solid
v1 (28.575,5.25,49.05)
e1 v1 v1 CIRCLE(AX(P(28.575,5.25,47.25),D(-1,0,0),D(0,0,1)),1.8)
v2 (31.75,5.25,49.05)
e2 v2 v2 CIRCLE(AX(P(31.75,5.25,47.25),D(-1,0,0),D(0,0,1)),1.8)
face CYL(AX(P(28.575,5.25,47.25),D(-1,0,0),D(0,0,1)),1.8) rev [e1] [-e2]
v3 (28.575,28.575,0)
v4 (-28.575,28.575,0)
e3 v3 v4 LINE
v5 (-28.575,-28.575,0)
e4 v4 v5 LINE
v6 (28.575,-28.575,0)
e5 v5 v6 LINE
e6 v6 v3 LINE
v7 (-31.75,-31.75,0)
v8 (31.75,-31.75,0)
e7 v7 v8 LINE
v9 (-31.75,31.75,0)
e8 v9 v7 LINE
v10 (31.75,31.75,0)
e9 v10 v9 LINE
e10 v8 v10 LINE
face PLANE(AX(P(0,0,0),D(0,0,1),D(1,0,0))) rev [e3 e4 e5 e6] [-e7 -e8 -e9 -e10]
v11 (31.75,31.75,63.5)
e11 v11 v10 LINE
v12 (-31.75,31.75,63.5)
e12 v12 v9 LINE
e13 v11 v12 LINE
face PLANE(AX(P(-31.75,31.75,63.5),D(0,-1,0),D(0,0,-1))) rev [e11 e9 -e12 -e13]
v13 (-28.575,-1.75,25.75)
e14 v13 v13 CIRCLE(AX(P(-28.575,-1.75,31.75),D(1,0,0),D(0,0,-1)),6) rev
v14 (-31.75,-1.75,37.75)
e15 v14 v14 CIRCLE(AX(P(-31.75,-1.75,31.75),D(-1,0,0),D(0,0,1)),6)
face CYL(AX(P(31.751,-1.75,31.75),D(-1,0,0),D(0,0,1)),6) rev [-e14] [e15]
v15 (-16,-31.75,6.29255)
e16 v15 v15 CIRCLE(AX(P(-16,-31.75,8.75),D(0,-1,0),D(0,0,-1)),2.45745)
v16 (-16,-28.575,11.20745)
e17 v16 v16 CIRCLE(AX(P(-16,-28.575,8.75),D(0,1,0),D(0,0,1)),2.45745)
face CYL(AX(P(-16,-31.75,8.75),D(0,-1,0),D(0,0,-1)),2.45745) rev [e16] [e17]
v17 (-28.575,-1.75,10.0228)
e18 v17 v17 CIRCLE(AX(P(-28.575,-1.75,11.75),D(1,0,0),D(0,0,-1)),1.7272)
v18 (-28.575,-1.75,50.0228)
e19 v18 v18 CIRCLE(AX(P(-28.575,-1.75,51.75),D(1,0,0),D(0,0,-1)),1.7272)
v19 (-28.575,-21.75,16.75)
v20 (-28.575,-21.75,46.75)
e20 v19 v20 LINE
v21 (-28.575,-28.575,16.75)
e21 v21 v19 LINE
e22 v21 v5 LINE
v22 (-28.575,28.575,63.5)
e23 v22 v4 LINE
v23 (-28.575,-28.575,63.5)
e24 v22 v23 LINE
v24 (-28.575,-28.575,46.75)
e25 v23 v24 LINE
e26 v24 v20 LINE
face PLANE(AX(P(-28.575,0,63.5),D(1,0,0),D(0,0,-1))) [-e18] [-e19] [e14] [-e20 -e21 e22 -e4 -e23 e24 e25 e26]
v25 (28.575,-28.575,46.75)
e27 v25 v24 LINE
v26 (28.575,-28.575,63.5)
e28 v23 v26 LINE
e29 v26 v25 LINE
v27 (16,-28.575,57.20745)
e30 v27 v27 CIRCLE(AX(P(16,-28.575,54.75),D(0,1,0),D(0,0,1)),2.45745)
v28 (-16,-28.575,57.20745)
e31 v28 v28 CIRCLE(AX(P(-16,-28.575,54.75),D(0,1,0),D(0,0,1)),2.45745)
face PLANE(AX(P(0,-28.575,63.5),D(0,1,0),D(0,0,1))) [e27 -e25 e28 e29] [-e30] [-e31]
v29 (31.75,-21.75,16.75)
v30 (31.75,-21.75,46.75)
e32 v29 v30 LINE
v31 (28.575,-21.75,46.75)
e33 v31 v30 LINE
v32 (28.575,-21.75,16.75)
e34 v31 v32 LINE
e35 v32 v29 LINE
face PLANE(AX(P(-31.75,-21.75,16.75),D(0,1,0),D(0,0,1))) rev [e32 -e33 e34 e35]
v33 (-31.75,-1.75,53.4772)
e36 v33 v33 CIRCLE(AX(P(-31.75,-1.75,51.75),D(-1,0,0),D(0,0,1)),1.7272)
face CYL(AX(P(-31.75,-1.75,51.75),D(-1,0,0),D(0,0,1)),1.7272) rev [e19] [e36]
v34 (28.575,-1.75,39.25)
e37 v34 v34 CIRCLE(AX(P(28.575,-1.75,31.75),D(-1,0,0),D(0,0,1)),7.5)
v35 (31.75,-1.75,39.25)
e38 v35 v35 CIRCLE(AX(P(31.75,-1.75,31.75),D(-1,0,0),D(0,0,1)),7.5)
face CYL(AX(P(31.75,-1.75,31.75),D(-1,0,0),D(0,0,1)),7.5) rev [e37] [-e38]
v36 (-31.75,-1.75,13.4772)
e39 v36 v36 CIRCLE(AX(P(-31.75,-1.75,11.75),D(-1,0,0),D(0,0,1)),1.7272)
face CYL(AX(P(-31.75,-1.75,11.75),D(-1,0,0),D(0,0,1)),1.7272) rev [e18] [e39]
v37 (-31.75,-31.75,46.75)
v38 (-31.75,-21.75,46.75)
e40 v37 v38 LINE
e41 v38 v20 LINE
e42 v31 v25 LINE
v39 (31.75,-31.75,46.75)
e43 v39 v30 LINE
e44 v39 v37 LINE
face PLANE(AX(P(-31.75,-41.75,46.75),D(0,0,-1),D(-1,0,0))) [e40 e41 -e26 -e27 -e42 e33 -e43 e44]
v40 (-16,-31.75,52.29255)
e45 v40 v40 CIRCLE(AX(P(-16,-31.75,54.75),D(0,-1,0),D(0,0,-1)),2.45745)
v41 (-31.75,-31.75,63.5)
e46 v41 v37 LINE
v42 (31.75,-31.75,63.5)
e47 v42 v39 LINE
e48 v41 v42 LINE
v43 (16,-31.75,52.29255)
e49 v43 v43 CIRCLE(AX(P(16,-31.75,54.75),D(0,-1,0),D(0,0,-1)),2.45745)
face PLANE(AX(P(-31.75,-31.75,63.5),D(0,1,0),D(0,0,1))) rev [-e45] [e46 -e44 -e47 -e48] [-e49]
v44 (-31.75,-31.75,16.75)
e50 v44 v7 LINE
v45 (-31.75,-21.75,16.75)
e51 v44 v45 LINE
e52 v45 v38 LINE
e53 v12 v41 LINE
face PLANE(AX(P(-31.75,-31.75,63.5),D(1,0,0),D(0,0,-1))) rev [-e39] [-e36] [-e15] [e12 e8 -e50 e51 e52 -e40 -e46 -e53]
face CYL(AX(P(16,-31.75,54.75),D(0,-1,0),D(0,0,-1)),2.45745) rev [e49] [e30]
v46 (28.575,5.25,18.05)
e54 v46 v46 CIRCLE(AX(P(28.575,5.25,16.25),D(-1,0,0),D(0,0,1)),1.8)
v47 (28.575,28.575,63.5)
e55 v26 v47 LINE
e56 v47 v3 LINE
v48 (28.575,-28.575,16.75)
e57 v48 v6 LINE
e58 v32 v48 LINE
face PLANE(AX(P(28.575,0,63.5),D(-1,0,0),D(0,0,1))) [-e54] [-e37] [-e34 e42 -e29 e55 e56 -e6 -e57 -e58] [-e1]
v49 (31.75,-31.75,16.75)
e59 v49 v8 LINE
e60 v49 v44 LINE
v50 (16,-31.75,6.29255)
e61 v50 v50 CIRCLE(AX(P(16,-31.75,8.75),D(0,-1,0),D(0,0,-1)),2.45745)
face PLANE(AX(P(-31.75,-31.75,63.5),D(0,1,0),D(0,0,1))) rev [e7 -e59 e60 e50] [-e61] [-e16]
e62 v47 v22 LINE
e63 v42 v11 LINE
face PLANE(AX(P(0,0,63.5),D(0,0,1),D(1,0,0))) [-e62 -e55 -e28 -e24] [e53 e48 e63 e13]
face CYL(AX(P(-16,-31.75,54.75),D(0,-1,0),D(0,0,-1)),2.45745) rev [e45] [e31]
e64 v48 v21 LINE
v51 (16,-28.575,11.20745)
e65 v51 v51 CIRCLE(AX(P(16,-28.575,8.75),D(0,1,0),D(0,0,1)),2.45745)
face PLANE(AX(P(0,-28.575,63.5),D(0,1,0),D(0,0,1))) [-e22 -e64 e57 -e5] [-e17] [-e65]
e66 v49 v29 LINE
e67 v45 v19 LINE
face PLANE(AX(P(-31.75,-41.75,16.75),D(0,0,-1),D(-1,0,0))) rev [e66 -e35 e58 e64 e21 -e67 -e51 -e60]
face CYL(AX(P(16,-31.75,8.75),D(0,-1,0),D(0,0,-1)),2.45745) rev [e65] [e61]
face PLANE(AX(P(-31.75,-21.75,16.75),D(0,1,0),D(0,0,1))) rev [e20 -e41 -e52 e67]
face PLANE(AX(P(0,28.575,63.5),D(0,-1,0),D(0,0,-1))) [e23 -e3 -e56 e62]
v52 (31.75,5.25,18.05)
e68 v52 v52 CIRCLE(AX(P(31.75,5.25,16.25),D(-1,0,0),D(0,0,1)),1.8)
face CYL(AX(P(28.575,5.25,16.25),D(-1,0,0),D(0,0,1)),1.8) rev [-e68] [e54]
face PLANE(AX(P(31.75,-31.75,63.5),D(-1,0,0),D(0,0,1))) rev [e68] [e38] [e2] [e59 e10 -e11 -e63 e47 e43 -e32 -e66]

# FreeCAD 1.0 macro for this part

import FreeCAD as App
import Part
import Sketcher

V = App.Vector
Q = App.Units.Quantity

doc = App.newDocument("Part")
body = doc.addObject("PartDesign::Body", "Body")

sketch1 = body.newObject("Sketcher::SketchObject", "Sketch")
sketch1.AttachmentSupport = (doc.getObject("XY_Plane"), [""])
sketch1.MapMode = "FlatFace"
sketch1.addGeometry([
    Part.LineSegment(V(-32, 32, 0), V(-32, -32, 0)),
    Part.LineSegment(V(-32, -32, 0), V(32, -32, 0)),
    Part.LineSegment(V(32, -32, 0), V(32, 32, 0)),
    Part.LineSegment(V(32, 32, 0), V(-32, 32, 0)),
    Part.LineSegment(V(29, -29, 0), V(-29, -29, 0)),
    Part.LineSegment(V(-29, -29, 0), V(-29, 29, 0)),
    Part.LineSegment(V(-29, 29, 0), V(29, 29, 0)),
    Part.LineSegment(V(29, 29, 0), V(29, -29, 0)),
], False)
sketch1.addConstraint([
    Sketcher.Constraint("Coincident", 0, 2, 1, 1),
    Sketcher.Constraint("Coincident", 1, 2, 2, 1),
    Sketcher.Constraint("Coincident", 2, 2, 3, 1),
    Sketcher.Constraint("Coincident", 3, 2, 0, 1),
    Sketcher.Constraint("Coincident", 4, 2, 5, 1),
    Sketcher.Constraint("Coincident", 5, 2, 6, 1),
    Sketcher.Constraint("Coincident", 6, 2, 7, 1),
    Sketcher.Constraint("Coincident", 7, 2, 4, 1),
    Sketcher.Constraint("Vertical", 0),
    Sketcher.Constraint("Horizontal", 1),
    Sketcher.Constraint("Vertical", 2),
    Sketcher.Constraint("Horizontal", 3),
    Sketcher.Constraint("Horizontal", 4),
    Sketcher.Constraint("Vertical", 5),
    Sketcher.Constraint("Horizontal", 6),
    Sketcher.Constraint("Vertical", 7),
    Sketcher.Constraint("Symmetric", 0, 2, 2, 2, -1, 1),
    Sketcher.Constraint("Symmetric", 4, 2, 6, 2, -1, 1),
    Sketcher.Constraint("Equal", 3, 0),
    Sketcher.Constraint("Equal", 6, 5),
    Sketcher.Constraint("DistanceX", 1, 1, 1, 2, Q("63.5 mm")),
    Sketcher.Constraint("DistanceX", 4, 2, 4, 1, Q("57.15 mm")),
])
pad1 = body.newObject("PartDesign::Pad", "Pad")
pad1.Profile = sketch1
pad1.Length = 63.5

sketch2 = body.newObject("Sketcher::SketchObject", "Sketch001")
sketch2.AttachmentSupport = (doc.getObject("YZ_Plane"), [""])
sketch2.MapMode = "FlatFace"
sketch2.AttachmentOffset = App.Placement(V(0, 0, 31.75), App.Rotation())
sketch2.addGeometry([
    Part.LineSegment(V(-22, 47, 0), V(-42, 47, 0)),
    Part.LineSegment(V(-42, 47, 0), V(-42, 17, 0)),
    Part.LineSegment(V(-42, 17, 0), V(-22, 17, 0)),
    Part.LineSegment(V(-22, 17, 0), V(-22, 47, 0)),
], False)
sketch2.addConstraint([
    Sketcher.Constraint("Coincident", 0, 2, 1, 1),
    Sketcher.Constraint("Coincident", 1, 2, 2, 1),
    Sketcher.Constraint("Coincident", 2, 2, 3, 1),
    Sketcher.Constraint("Coincident", 3, 2, 0, 1),
    Sketcher.Constraint("Horizontal", 0),
    Sketcher.Constraint("Vertical", 1),
    Sketcher.Constraint("Horizontal", 2),
    Sketcher.Constraint("Vertical", 3),
    Sketcher.Constraint("DistanceX", 0, 2, 0, 1, Q("20 mm")),
    Sketcher.Constraint("DistanceY", 1, 2, 1, 1, Q("30 mm")),
    Sketcher.Constraint("DistanceX", 0, 2, -1, 1, Q("41.75 mm")),
    Sketcher.Constraint("DistanceY", -1, 1, 0, 2, Q("46.75 mm")),
])
pocket1 = body.newObject("PartDesign::Pocket", "Pocket")
pocket1.Profile = sketch2
pocket1.Type = "ThroughAll"

sketch3 = body.newObject("Sketcher::SketchObject", "Sketch002")
sketch3.AttachmentSupport = (doc.getObject("YZ_Plane"), [""])
sketch3.MapMode = "FlatFace"
sketch3.AttachmentOffset = App.Placement(V(0, 0, 28.575), App.Rotation())
sketch3.addGeometry(Part.Circle(V(-2, 32, 0), V(0, 0, 1), 8), False)
sketch3.addConstraint([
    Sketcher.Constraint("Diameter", 0, Q("15 mm")),
    Sketcher.Constraint("DistanceX", 0, 3, -1, 1, Q("1.75 mm")),
    Sketcher.Constraint("DistanceY", -1, 1, 0, 3, Q("31.75 mm")),
])
pocket2 = body.newObject("PartDesign::Pocket", "Pocket001")
pocket2.Profile = sketch3
pocket2.Type = "ThroughAll"
pocket2.Reversed = True

sketch4 = body.newObject("Sketcher::SketchObject", "Sketch003")
sketch4.AttachmentSupport = (doc.getObject("YZ_Plane"), [""])
sketch4.MapMode = "FlatFace"
sketch4.AttachmentOffset = App.Placement(V(0, 0, 28.575), App.Rotation())
sketch4.addGeometry([
    Part.Circle(V(5.2, 16.2, 0), V(0, 0, 1), 1.8),
    Part.Circle(V(5.2, 47.2, 0), V(0, 0, 1), 1.8),
], False)
sketch4.addConstraint([
    Sketcher.Constraint("Equal", 0, 1),
    Sketcher.Constraint("Vertical", 0, 3, 1, 3),
    Sketcher.Constraint("Diameter", 0, Q("3.6 mm")),
    Sketcher.Constraint("DistanceY", 0, 3, 1, 3, Q("31 mm")),
    Sketcher.Constraint("DistanceX", -1, 1, 0, 3, Q("5.25 mm")),
    Sketcher.Constraint("DistanceY", -1, 1, 0, 3, Q("16.25 mm")),
])
doc.recompute()
hole = body.newObject("PartDesign::Hole", "Hole")
hole.Profile = sketch4
hole.ThreadType = "None"
hole.Diameter = 3.6
hole.DepthType = "Dimension"
hole.Depth = 3.175
hole.DrillPoint = "Flat"
hole.Reversed = True

sketch5 = body.newObject("Sketcher::SketchObject", "Sketch004")
sketch5.AttachmentSupport = (doc.getObject("YZ_Plane"), [""])
sketch5.MapMode = "FlatFace"
sketch5.AttachmentOffset = App.Placement(V(0, 0, -31.75), App.Rotation())
sketch5.addGeometry([
    Part.Circle(V(-1.8, 51.8, 0), V(0, 0, 1), 1.7),
    Part.Circle(V(-1.8, 11.8, 0), V(0, 0, 1), 1.7),
], False)
sketch5.addConstraint([
    Sketcher.Constraint("Equal", 0, 1),
    Sketcher.Constraint("Vertical", 0, 3, 1, 3),
    Sketcher.Constraint("DistanceY", 1, 3, 0, 3, Q("40 mm")),
    Sketcher.Constraint("Diameter", 0, Q("3.4544 mm")),
    Sketcher.Constraint("DistanceX", 0, 3, -1, 1, Q("1.75 mm")),
    Sketcher.Constraint("DistanceY", -1, 1, 0, 3, Q("51.75 mm")),
])
doc.recompute()
hole2 = body.newObject("PartDesign::Hole", "Hole001")
hole2.Profile = sketch5
hole2.ThreadType = "None"
hole2.Diameter = 3.4544
hole2.DepthType = "Dimension"
hole2.Depth = 3.175
hole2.DrillPoint = "Flat"
hole2.Reversed = True

sketch6 = body.newObject("Sketcher::SketchObject", "Sketch005")
sketch6.AttachmentSupport = (doc.getObject("YZ_Plane"), [""])
sketch6.MapMode = "FlatFace"
sketch6.AttachmentOffset = App.Placement(V(0, 0, -31.75), App.Rotation())
sketch6.addGeometry(Part.Circle(V(-2, 32, 0), V(0, 0, 1), 6), False)
sketch6.addConstraint([
    Sketcher.Constraint("Diameter", 0, Q("12 mm")),
    Sketcher.Constraint("DistanceX", 0, 3, -1, 1, Q("1.75 mm")),
    Sketcher.Constraint("DistanceY", -1, 1, 0, 3, Q("31.75 mm")),
])
pocket3 = body.newObject("PartDesign::Pocket", "Pocket002")
pocket3.Profile = sketch6
pocket3.Type = "UpToFirst"
pocket3.Reversed = True

sketch7 = body.newObject("Sketcher::SketchObject", "Sketch006")
sketch7.AttachmentSupport = (doc.getObject("XZ_Plane"), [""])
sketch7.MapMode = "FlatFace"
sketch7.AttachmentOffset = App.Placement(V(0, 0, 31.75), App.Rotation())
sketch7.addGeometry([
    Part.Circle(V(-16, 8.8, 0), V(0, 0, 1), 2.5),
    Part.Circle(V(16, 8.8, 0), V(0, 0, 1), 2.5),
    Part.Circle(V(16, 54.8, 0), V(0, 0, 1), 2.5),
    Part.Circle(V(-16, 54.8, 0), V(0, 0, 1), 2.5),
], False)
sketch7.addConstraint([
    Sketcher.Constraint("Equal", 0, 1),
    Sketcher.Constraint("Equal", 1, 2),
    Sketcher.Constraint("Equal", 2, 3),
    Sketcher.Constraint("Symmetric", 0, 3, 1, 3, -2),
    Sketcher.Constraint("Symmetric", 2, 3, 3, 3, -2),
    Sketcher.Constraint("Vertical", 1, 3, 2, 3),
    Sketcher.Constraint("DistanceX", 0, 3, -1, 1, Q("16 mm")),
    Sketcher.Constraint("DistanceY", 1, 3, 2, 3, Q("46 mm")),
    Sketcher.Constraint("Diameter", 0, Q("4.9149 mm")),
    Sketcher.Constraint("DistanceY", -1, 1, 0, 3, Q("8.75 mm")),
])
doc.recompute()
hole3 = body.newObject("PartDesign::Hole", "Hole002")
hole3.Profile = sketch7
hole3.ThreadType = "None"
hole3.Diameter = 4.9149
hole3.DepthType = "Dimension"
hole3.Depth = 3.175
hole3.DrillPoint = "Flat"

doc.recompute()
